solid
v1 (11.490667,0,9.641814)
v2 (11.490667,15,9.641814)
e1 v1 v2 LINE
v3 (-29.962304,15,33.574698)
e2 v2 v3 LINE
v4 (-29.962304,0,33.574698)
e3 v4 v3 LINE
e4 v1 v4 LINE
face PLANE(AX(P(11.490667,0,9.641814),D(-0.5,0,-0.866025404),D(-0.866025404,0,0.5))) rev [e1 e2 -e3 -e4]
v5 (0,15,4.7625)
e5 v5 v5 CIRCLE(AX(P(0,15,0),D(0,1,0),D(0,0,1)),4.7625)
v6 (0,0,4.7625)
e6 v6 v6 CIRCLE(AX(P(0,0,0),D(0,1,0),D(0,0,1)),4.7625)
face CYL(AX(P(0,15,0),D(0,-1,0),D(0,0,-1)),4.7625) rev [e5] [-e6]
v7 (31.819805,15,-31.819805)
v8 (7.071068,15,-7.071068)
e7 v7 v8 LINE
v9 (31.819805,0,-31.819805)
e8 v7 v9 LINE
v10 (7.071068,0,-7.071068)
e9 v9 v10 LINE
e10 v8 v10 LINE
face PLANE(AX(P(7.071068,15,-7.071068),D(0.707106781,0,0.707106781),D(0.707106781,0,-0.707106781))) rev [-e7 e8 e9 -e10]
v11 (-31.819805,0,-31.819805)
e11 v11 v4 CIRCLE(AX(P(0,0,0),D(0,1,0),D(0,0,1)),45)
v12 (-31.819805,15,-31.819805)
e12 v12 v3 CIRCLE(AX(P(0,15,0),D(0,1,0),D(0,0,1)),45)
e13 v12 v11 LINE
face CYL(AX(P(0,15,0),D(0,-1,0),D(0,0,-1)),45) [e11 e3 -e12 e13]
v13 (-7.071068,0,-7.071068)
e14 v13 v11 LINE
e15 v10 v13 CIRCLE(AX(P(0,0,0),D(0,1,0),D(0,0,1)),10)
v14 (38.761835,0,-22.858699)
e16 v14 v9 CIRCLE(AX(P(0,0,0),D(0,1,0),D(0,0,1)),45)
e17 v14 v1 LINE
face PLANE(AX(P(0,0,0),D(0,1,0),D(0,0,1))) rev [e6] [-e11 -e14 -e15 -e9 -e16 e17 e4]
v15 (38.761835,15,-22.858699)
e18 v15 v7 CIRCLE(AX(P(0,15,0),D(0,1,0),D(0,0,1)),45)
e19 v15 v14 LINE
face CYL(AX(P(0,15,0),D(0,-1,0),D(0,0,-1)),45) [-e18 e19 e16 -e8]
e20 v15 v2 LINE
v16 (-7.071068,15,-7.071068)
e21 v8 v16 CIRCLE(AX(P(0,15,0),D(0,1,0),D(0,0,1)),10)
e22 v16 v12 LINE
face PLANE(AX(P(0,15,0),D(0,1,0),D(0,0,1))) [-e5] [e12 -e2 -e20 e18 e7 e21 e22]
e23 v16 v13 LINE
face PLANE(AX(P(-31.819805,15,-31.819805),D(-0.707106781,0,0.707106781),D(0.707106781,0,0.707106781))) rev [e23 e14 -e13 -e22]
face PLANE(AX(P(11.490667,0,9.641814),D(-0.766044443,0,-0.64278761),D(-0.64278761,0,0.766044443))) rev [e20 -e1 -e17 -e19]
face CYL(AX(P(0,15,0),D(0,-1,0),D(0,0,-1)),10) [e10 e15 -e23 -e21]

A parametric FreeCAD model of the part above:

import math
import FreeCAD as App
import Part
import Sketcher

V = App.Vector
Q = App.Units.Quantity

doc = App.newDocument("Part")
body = doc.addObject("PartDesign::Body", "Body")

# Sketch on XZ plane
sketch1 = body.newObject("Sketcher::SketchObject", "Sketch")
sketch1.AttachmentSupport = (doc.getObject("XZ_Plane"), [""])
sketch1.MapMode = "FlatFace"
sketch1.addGeometry(Part.LineSegment(V(-7.071068, -7.071068, 0), V(-31.819805, -31.819805, 0)), False)
sketch1.addGeometry(Part.ArcOfCircle(Part.Circle(V(0, 0, 0), V(0, 0, 1), 45), math.radians(-45), math.radians(225)), False)
sketch1.addGeometry(Part.LineSegment(V(31.819805, -31.819805, 0), V(7.071068, -7.071068, 0)), False)
sketch1.addGeometry(Part.ArcOfCircle(Part.Circle(V(0, 0, 0), V(0, 0, 1), 10), math.radians(-135), math.radians(-45)), False)
sketch1.addGeometry(Part.Circle(V(0, 0, 0), V(0, 0, 1), 4.7625), False)
sketch1.addConstraint(Sketcher.Constraint("Coincident", 0, 2, 1, 2))
sketch1.addConstraint(Sketcher.Constraint("Coincident", 1, 1, 2, 1))
sketch1.addConstraint(Sketcher.Constraint("Coincident", 2, 2, 3, 2))
sketch1.addConstraint(Sketcher.Constraint("Coincident", 3, 1, 0, 1))
sketch1.addConstraint(Sketcher.Constraint("Coincident", 1, 3, -1, 1))
sketch1.addConstraint(Sketcher.Constraint("Coincident", 3, 3, -1, 1))
sketch1.addConstraint(Sketcher.Constraint("Coincident", 4, 3, -1, 1))
sketch1.addConstraint(Sketcher.Constraint("Perpendicular", 0, 2))
sketch1.addConstraint(Sketcher.Constraint("Horizontal", 0, 2, 1, 1))
sketch1.addConstraint(Sketcher.Constraint("Horizontal", 2, 2, 3, 1))
sketch1.addConstraint(Sketcher.Constraint("Radius", 1, Q("45 mm")))
sketch1.addConstraint(Sketcher.Constraint("Radius", 3, Q("10 mm")))
sketch1.addConstraint(Sketcher.Constraint("Diameter", 4, Q("9.525 mm")))
sketch1.addConstraint(Sketcher.Constraint("DistanceX", 0, 2, 1, 1, Q("63.63961 mm")))
pad1 = body.newObject("PartDesign::Pad", "Pad")
pad1.Profile = sketch1
pad1.Length = 15
pad1.Reversed = True

# Sketch on XZ plane
sketch2 = body.newObject("Sketcher::SketchObject", "Sketch001")
sketch2.AttachmentSupport = (doc.getObject("XZ_Plane"), [""])
sketch2.MapMode = "FlatFace"
sketch2.AttachmentOffset = App.Placement(V(0, 0, -15), App.Rotation())
sketch2.addGeometry(Part.LineSegment(V(45.50379, -30.893448, 0), V(11.490667, 9.641814, 0)), False)
sketch2.addGeometry(Part.LineSegment(V(11.490667, 9.641814, 0), V(-38.99294, 38.788538, 0)), False)
sketch2.addGeometry(Part.ArcOfCircle(Part.Circle(V(0, 0, 0), V(0, 0, 1), 55), math.radians(-34.17338), math.radians(135.150567)), False)
sketch2.addConstraint(Sketcher.Constraint("Coincident", 0, 2, 1, 1))
sketch2.addConstraint(Sketcher.Constraint("Coincident", 1, 2, 2, 2))
sketch2.addConstraint(Sketcher.Constraint("Coincident", 2, 1, 0, 1))
sketch2.addConstraint(Sketcher.Constraint("Coincident", 2, 3, -1, 1))
sketch2.addConstraint(Sketcher.Constraint("Radius", 2, Q("55 mm")))
sketch2.addConstraint(Sketcher.Constraint("Angle", 0, Q("130 deg")))
sketch2.addConstraint(Sketcher.Constraint("Angle", 1, Q("150 deg")))
sketch2.addConstraint(Sketcher.Constraint("DistanceX", 1, 2, -1, 1, Q("38.99294 mm")))
sketch2.addConstraint(Sketcher.Constraint("DistanceX", -1, 1, 2, 1, Q("45.50379 mm")))
pocket1 = body.newObject("PartDesign::Pocket", "Pocket")
pocket1.Profile = sketch2
pocket1.Type = "ThroughAll"
pocket1.Reversed = True

doc.recompute()
